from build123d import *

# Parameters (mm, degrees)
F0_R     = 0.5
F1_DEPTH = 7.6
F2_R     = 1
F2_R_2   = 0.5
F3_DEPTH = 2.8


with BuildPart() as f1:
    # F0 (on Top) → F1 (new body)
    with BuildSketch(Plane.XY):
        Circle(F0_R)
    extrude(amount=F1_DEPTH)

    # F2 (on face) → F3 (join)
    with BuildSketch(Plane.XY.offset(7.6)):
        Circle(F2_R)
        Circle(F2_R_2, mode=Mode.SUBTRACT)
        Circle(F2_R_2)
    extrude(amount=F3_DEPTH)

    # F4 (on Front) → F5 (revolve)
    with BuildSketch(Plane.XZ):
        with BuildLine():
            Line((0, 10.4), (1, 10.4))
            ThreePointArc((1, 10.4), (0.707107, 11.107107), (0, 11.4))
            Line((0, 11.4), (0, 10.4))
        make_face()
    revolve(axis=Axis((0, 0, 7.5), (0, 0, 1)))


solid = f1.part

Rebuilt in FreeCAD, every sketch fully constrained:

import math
import FreeCAD as App
import Part
import Sketcher
from FreeCAD import Vector

doc = App.newDocument("Part")
body = doc.addObject("PartDesign::Body", "Body")

# Sketch on XY plane
sketch1 = body.newObject("Sketcher::SketchObject", "Sketch")
sketch1.AttachmentSupport = (doc.getObject("XY_Plane"), [""])
sketch1.MapMode = "FlatFace"
sketch1.addGeometry(Part.Circle(Vector(0, 0, 0), Vector(0, 0, 1), 0.5), False)
sketch1.addConstraint(Sketcher.Constraint("Coincident", 0, 3, -1, 1))
sketch1.addConstraint(Sketcher.Constraint("Diameter", 0, 1.0))
pad1 = body.newObject("PartDesign::Pad", "Pad")
pad1.Profile = sketch1
pad1.Length = 7.6

# Sketch on XY plane
sketch2 = body.newObject("Sketcher::SketchObject", "Sketch001")
sketch2.AttachmentSupport = (doc.getObject("XY_Plane"), [""])
sketch2.MapMode = "FlatFace"
sketch2.AttachmentOffset = App.Placement(Vector(0, 0, 7.6), App.Rotation())
sketch2.addGeometry(Part.Circle(Vector(0, 0, 0), Vector(0, 0, 1), 1), False)
sketch2.addConstraint(Sketcher.Constraint("Coincident", 0, 3, -1, 1))
sketch2.addConstraint(Sketcher.Constraint("Diameter", 0, 2.0))
pad2 = body.newObject("PartDesign::Pad", "Pad001")
pad2.Profile = sketch2
pad2.Length = 2.8

# Sketch on XZ plane
sketch3 = body.newObject("Sketcher::SketchObject", "Sketch002")
sketch3.AttachmentSupport = (doc.getObject("XZ_Plane"), [""])
sketch3.MapMode = "FlatFace"
sketch3.addGeometry(Part.LineSegment(Vector(0, 10.4, 0), Vector(1, 10.4, 0)), False)
sketch3.addGeometry(Part.ArcOfCircle(Part.Circle(Vector(0.000001, 10.400001, 0), Vector(0, 0, 1), 0.999999), math.radians(-0.000043), math.radians(90.000043)), False)
sketch3.addGeometry(Part.LineSegment(Vector(0, 11.4, 0), Vector(0, 10.4, 0)), False)
sketch3.addConstraint(Sketcher.Constraint("Coincident", 0, 2, 1, 1))
sketch3.addConstraint(Sketcher.Constraint("Coincident", 1, 2, 2, 1))
sketch3.addConstraint(Sketcher.Constraint("Coincident", 2, 2, 0, 1))
sketch3.addConstraint(Sketcher.Constraint("Horizontal", 0))
sketch3.addConstraint(Sketcher.Constraint("Vertical", 2))
sketch3.addConstraint(Sketcher.Constraint("Coincident", 2, 2, 1, 3))
sketch3.addConstraint(Sketcher.Constraint("PointOnObject", 1, 3, -2))
sketch3.addConstraint(Sketcher.Constraint("Radius", 1, 0.999999))
sketch3.addConstraint(Sketcher.Constraint("DistanceY", -1, 1, 1, 3, 10.400001))
revolution = body.newObject("PartDesign::Revolution", "Revolution")
revolution.Profile = sketch3
revolution.ReferenceAxis = (sketch3, ["V_Axis"])
revolution.Angle = 360

doc.recompute()
